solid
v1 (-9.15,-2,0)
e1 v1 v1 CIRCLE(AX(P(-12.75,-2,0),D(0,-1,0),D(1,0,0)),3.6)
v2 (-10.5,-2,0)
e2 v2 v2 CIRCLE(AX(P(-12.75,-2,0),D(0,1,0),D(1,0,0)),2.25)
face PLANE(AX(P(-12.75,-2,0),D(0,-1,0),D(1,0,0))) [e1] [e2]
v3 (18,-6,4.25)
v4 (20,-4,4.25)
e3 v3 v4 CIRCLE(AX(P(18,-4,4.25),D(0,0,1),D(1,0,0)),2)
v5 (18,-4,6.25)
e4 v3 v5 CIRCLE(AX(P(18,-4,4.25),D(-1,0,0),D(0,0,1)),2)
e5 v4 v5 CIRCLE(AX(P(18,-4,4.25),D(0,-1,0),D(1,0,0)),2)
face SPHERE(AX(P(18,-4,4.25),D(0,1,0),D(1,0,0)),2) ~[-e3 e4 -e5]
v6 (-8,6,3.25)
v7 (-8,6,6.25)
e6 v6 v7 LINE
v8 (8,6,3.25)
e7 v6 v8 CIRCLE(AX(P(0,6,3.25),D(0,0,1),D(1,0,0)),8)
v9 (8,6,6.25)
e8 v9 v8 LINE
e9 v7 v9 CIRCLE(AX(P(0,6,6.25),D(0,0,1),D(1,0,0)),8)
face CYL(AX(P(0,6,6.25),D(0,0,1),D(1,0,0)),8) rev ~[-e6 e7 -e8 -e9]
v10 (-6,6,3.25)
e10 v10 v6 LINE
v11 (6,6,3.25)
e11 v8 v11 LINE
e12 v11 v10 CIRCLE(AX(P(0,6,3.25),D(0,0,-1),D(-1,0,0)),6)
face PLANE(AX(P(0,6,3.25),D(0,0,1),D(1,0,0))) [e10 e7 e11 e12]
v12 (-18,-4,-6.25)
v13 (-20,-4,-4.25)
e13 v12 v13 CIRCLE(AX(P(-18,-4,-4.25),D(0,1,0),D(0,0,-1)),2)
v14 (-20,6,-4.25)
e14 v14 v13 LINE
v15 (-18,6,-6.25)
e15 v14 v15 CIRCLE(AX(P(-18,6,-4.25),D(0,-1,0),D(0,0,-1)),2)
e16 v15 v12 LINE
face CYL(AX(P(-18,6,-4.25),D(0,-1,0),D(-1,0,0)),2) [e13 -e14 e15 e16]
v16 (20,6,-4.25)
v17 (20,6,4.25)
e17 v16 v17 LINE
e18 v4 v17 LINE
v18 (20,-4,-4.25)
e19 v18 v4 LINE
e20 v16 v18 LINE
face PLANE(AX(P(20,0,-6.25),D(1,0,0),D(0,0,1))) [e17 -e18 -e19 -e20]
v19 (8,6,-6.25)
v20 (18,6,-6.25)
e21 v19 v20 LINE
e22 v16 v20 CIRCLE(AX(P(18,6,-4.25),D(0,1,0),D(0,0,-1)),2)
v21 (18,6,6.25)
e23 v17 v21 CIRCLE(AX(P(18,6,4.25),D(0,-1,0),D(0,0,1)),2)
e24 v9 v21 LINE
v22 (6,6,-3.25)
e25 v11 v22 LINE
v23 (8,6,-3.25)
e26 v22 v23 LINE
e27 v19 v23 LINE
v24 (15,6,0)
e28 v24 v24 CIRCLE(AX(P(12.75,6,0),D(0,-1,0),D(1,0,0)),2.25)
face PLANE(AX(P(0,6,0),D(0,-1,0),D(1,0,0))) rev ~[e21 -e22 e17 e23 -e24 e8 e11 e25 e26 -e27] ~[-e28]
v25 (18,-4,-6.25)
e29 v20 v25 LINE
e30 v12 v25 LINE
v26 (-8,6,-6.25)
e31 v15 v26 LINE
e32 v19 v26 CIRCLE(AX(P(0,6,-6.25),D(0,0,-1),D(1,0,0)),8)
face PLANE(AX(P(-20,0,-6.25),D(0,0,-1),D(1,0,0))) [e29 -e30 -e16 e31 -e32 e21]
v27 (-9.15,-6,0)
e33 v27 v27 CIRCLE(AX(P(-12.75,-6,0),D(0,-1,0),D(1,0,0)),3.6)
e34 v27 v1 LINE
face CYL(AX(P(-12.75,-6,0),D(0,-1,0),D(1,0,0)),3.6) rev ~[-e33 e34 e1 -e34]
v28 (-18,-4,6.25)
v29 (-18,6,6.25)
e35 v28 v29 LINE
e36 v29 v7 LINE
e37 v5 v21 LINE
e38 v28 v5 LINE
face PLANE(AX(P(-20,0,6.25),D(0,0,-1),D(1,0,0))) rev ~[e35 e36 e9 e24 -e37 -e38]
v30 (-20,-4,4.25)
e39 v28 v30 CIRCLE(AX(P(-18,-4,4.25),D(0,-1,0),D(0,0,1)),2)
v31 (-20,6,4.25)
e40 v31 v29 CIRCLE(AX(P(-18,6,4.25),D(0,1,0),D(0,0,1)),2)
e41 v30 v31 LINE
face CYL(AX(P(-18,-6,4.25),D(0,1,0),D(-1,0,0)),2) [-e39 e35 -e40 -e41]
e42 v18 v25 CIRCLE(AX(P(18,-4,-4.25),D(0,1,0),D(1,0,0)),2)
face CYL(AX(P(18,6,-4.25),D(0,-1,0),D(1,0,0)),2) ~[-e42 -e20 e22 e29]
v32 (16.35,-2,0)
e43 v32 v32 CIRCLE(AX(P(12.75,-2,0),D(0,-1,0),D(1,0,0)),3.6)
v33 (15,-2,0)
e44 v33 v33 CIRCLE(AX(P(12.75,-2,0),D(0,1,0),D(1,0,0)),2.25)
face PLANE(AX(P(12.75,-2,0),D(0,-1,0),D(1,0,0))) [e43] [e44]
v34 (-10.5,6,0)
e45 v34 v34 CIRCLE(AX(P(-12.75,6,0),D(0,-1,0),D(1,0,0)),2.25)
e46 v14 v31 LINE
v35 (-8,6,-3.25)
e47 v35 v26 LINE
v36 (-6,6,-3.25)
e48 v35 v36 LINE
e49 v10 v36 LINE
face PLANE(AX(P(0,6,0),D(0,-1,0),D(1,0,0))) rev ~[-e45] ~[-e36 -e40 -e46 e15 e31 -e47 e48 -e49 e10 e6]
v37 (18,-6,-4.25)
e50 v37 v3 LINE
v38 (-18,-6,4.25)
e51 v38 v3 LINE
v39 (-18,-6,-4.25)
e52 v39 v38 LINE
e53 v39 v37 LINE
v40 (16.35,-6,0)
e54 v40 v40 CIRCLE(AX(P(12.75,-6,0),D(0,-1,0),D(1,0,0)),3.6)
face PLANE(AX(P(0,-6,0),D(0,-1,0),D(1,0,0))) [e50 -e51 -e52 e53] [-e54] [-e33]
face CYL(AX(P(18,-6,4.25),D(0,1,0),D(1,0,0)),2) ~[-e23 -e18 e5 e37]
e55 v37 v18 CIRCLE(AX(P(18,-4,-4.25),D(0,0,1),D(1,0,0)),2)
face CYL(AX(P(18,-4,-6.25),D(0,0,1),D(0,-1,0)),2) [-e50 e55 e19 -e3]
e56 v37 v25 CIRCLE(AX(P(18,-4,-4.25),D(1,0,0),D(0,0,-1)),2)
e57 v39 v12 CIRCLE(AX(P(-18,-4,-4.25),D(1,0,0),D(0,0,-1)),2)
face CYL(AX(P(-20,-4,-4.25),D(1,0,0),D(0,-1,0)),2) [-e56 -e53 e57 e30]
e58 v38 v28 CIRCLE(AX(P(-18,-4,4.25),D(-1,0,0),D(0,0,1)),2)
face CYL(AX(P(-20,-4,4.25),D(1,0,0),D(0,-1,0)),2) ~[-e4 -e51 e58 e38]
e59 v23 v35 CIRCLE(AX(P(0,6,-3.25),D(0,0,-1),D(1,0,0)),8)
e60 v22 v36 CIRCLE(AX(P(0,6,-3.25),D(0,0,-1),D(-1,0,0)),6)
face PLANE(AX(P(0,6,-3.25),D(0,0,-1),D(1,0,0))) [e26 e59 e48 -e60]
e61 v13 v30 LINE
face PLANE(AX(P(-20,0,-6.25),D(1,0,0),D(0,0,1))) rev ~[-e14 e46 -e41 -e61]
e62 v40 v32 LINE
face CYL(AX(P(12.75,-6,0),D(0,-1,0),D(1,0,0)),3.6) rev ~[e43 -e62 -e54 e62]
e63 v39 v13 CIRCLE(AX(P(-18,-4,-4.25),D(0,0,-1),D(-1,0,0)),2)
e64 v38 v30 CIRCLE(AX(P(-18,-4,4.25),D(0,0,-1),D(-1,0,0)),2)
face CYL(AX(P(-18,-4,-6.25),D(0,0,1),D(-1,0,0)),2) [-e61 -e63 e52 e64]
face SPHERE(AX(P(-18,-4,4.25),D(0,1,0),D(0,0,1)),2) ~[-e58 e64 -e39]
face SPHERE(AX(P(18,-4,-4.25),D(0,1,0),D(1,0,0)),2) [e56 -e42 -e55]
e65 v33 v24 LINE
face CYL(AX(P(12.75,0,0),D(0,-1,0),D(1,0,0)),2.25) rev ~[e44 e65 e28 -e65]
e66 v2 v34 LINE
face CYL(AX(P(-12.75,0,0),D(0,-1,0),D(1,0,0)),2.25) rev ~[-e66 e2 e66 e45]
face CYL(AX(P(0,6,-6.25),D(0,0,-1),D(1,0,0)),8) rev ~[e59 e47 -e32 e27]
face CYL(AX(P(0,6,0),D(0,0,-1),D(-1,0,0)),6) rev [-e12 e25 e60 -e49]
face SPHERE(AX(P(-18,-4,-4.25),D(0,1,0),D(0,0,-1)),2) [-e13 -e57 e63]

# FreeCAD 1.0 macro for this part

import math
import FreeCAD as App
import Part
import Sketcher


def edges_at(feature, points):
    """Names of the edges that pass closest to the given points."""
    edges = feature.Shape.Edges
    near = lambda p: min(range(len(edges)), key=lambda i: edges[i].distToShape(Part.Vertex(*p))[0])
    return sorted({f"Edge{near(p) + 1}" for p in points})


def add_polygon(sketch, points):
    """Adds a closed chain of lines whose ends are joined by coincident constraints."""
    first, n = sketch.GeometryCount, len(points)
    for a, b in zip(points, points[1:] + points[:1]):
        sketch.addGeometry(Part.LineSegment(App.Vector(*a, 0), App.Vector(*b, 0)), False)
    for i in range(n):
        sketch.addConstraint(Sketcher.Constraint("Coincident", first + i, 2, first + (i + 1) % n, 1))

doc = App.newDocument("Part")
body = doc.addObject("PartDesign::Body", "Body")

# Sketch on XZ plane
sketch1 = body.newObject("Sketcher::SketchObject", "Sketch")
sketch1.AttachmentSupport = (doc.getObject("XZ_Plane"), [""])
sketch1.MapMode = "FlatFace"
add_polygon(sketch1, [(-20, 6.2), (-20, -6.2), (20, -6.2), (20, 6.2)])  # lines 0-3
sketch1.addGeometry(Part.Circle(App.Vector(-12.8, 0, 0), App.Vector(0, 0, 1), 2.2), False)  # 4
sketch1.addGeometry(Part.Circle(App.Vector(12.8, 0, 0), App.Vector(0, 0, 1), 2.2), False)  # 5
sketch1.addConstraint([
    Sketcher.Constraint("Vertical", 0),
    Sketcher.Constraint("Horizontal", 1),
    Sketcher.Constraint("Vertical", 2),
    Sketcher.Constraint("Horizontal", 3),
    Sketcher.Constraint("Equal", 4, 5),
    Sketcher.Constraint("Symmetric", 4, 3, 5, 3, -1, 1),
    Sketcher.Constraint("Symmetric", 0, 2, 2, 2, -1, 1),
    Sketcher.Constraint("PointOnObject", 4, 3, -1),
    Sketcher.Constraint("Diameter", 4, 4.5),
    Sketcher.Constraint("DistanceX", 1, 1, 1, 2, 40.0),
    Sketcher.Constraint("DistanceY", 0, 2, 0, 1, 12.5),
    Sketcher.Constraint("DistanceX", 4, 3, 5, 3, 25.5),
])
pad1 = body.newObject("PartDesign::Pad", "Pad")
pad1.Profile = sketch1
pad1.Type = "TwoLengths"
pad1.Length = 6
pad1.Length2 = 6

# Sketch on XZ plane
sketch2 = body.newObject("Sketcher::SketchObject", "Sketch001")
sketch2.AttachmentSupport = (doc.getObject("XZ_Plane"), [""])
sketch2.MapMode = "FlatFace"
sketch2.AttachmentOffset = App.Placement(App.Vector(0, 0, 6), App.Rotation())
sketch2.addGeometry([
    Part.Circle(App.Vector(-12.8, 0, 0), App.Vector(0, 0, 1), 3.6),
    Part.Circle(App.Vector(12.8, 0, 0), App.Vector(0, 0, 1), 3.6),
], False)
sketch2.addConstraint([
    Sketcher.Constraint("Equal", 0, 1),
    Sketcher.Constraint("Symmetric", 0, 3, 1, 3, -1, 1),
    Sketcher.Constraint("PointOnObject", 0, 3, -1),
    Sketcher.Constraint("Diameter", 0, 7.2),
    Sketcher.Constraint("DistanceX", 0, 3, 1, 3, 25.5),
])
pocket1 = body.newObject("PartDesign::Pocket", "Pocket")
pocket1.Profile = sketch2
pocket1.Length = 4
doc.recompute()

fillet = body.newObject("PartDesign::Fillet", "Fillet")
fillet.Base = (pocket1, edges_at(pocket1, [
    (-20, 0, 6.25),
    (-20, 0, -6.25),
    (20, 0, 6.25),
    (20, 0, -6.25),
    (20, -6, 0),
    (0, -6, 6.25),
    (0, -6, -6.25),
    (-20, -6, 0),
]))
fillet.Radius = 2

# Sketch on XY plane
sketch3 = body.newObject("Sketcher::SketchObject", "Sketch002")
sketch3.AttachmentSupport = (doc.getObject("XY_Plane"), [""])
sketch3.MapMode = "FlatFace"
sketch3.addGeometry([
    Part.LineSegment(App.Vector(6, 6, 0), App.Vector(-6, 6, 0)),
    Part.ArcOfCircle(Part.Circle(App.Vector(0, 6, 0), App.Vector(0, 0, 1), 6), math.radians(180), math.radians(360)),
], False)
sketch3.addConstraint([
    Sketcher.Constraint("Coincident", 0, 1, 1, 2),
    Sketcher.Constraint("Coincident", 1, 1, 0, 2),
    Sketcher.Constraint("Horizontal", 0),
    Sketcher.Constraint("PointOnObject", 1, 3, -2),
    Sketcher.Constraint("Horizontal", 1, 3, 0, 1),
    Sketcher.Constraint("Radius", 1, 6.0),
    Sketcher.Constraint("DistanceY", -1, 1, 1, 3, 6.0),
])
pocket2 = body.newObject("PartDesign::Pocket", "Pocket001")
pocket2.Profile = sketch3
pocket2.Type = "ThroughAll"
pocket2.Midplane = True

# Sketch on XY plane
sketch4 = body.newObject("Sketcher::SketchObject", "Sketch003")
sketch4.AttachmentSupport = (doc.getObject("XY_Plane"), [""])
sketch4.MapMode = "FlatFace"
sketch4.AttachmentOffset = App.Placement(App.Vector(0, 0, 6.25), App.Rotation())
sketch4.addGeometry(Part.Circle(App.Vector(0, 6, 0), App.Vector(0, 0, 1), 8), False)
sketch4.addConstraint([
    Sketcher.Constraint("PointOnObject", 0, 3, -2),
    Sketcher.Constraint("Diameter", 0, 16.0),
    Sketcher.Constraint("DistanceY", -1, 1, 0, 3, 6.0),
])
pocket3 = body.newObject("PartDesign::Pocket", "Pocket002")
pocket3.Profile = sketch4
pocket3.Length = 3

# Sketch on XY plane
sketch5 = body.newObject("Sketcher::SketchObject", "Sketch004")
sketch5.AttachmentSupport = (doc.getObject("XY_Plane"), [""])
sketch5.MapMode = "FlatFace"
sketch5.AttachmentOffset = App.Placement(App.Vector(0, 0, -6.25), App.Rotation())
sketch5.addGeometry(Part.Circle(App.Vector(0, 6, 0), App.Vector(0, 0, 1), 8), False)
sketch5.addConstraint([
    Sketcher.Constraint("PointOnObject", 0, 3, -2),
    Sketcher.Constraint("Diameter", 0, 16.0),
    Sketcher.Constraint("DistanceY", -1, 1, 0, 3, 6.0),
])
pocket4 = body.newObject("PartDesign::Pocket", "Pocket003")
pocket4.Profile = sketch5
pocket4.Length = 3
pocket4.Reversed = True

doc.recompute()
